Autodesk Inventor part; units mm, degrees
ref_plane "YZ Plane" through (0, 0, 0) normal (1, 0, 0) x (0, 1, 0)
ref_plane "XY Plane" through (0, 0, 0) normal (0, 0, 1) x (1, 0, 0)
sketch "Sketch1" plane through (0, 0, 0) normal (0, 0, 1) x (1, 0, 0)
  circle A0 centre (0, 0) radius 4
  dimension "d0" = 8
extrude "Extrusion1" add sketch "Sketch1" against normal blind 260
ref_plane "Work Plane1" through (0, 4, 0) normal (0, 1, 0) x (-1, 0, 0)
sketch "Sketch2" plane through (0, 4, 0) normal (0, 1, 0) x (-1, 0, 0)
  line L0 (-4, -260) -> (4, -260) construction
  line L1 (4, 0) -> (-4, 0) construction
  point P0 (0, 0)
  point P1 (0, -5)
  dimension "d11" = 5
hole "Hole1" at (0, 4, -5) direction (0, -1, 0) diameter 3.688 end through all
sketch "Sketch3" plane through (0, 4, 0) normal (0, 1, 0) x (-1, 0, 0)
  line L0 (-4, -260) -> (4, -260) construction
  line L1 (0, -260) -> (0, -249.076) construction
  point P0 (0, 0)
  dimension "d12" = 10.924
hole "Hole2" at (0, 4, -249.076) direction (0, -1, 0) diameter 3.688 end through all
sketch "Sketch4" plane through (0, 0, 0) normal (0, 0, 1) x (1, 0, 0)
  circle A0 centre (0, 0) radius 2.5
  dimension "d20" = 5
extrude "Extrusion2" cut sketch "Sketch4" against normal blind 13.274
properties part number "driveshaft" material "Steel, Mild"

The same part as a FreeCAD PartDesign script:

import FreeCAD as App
import Part
import Sketcher

V = App.Vector
Q = App.Units.Quantity

doc = App.newDocument("Part")
body = doc.addObject("PartDesign::Body", "Body")

sketch1 = body.newObject("Sketcher::SketchObject", "Sketch")
sketch1.AttachmentSupport = (doc.getObject("XY_Plane"), [""])
sketch1.MapMode = "FlatFace"
sketch1.addGeometry(Part.Circle(V(0, 0, 0), V(0, 0, 1), 4), False)
sketch1.addConstraint([
    Sketcher.Constraint("Coincident", 0, 3, -1, 1),
    Sketcher.Constraint("Diameter", 0, Q("8 mm")),
])
pad1 = body.newObject("PartDesign::Pad", "Pad")
pad1.Profile = sketch1
pad1.Length = 260
pad1.Reversed = True

sketch2 = body.newObject("Sketcher::SketchObject", "Sketch001")
sketch2.AttachmentSupport = (doc.getObject("XZ_Plane"), [""])
sketch2.MapMode = "FlatFace"
sketch2.AttachmentOffset = App.Placement(V(0, 0, -4), App.Rotation())
sketch2.addGeometry(Part.Circle(V(0, -5, 0), V(0, 0, 1), 1.8), False)
sketch2.addConstraint([
    Sketcher.Constraint("PointOnObject", 0, 3, -2),
    Sketcher.Constraint("Diameter", 0, Q("3.688 mm")),
    Sketcher.Constraint("DistanceY", 0, 3, -1, 1, Q("5 mm")),
])
doc.recompute()
hole = body.newObject("PartDesign::Hole", "Hole")
hole.Profile = sketch2
hole.ThreadType = "None"
hole.Diameter = 3.688
hole.DepthType = "ThroughAll"
hole.Reversed = True

sketch3 = body.newObject("Sketcher::SketchObject", "Sketch002")
sketch3.AttachmentSupport = (doc.getObject("XZ_Plane"), [""])
sketch3.MapMode = "FlatFace"
sketch3.AttachmentOffset = App.Placement(V(0, 0, -4), App.Rotation())
sketch3.addGeometry(Part.Circle(V(0, -249.1, 0), V(0, 0, 1), 1.8), False)
sketch3.addConstraint([
    Sketcher.Constraint("PointOnObject", 0, 3, -2),
    Sketcher.Constraint("Diameter", 0, Q("3.688 mm")),
    Sketcher.Constraint("DistanceY", 0, 3, -1, 1, Q("249.076 mm")),
])
doc.recompute()
hole2 = body.newObject("PartDesign::Hole", "Hole001")
hole2.Profile = sketch3
hole2.ThreadType = "None"
hole2.Diameter = 3.688
hole2.DepthType = "ThroughAll"
hole2.Reversed = True

sketch4 = body.newObject("Sketcher::SketchObject", "Sketch003")
sketch4.AttachmentSupport = (doc.getObject("XY_Plane"), [""])
sketch4.MapMode = "FlatFace"
sketch4.addGeometry(Part.Circle(V(0, 0, 0), V(0, 0, 1), 2.5), False)
sketch4.addConstraint([
    Sketcher.Constraint("Coincident", 0, 3, -1, 1),
    Sketcher.Constraint("Diameter", 0, Q("5 mm")),
])
pocket1 = body.newObject("PartDesign::Pocket", "Pocket")
pocket1.Profile = sketch4
pocket1.Length = 13.274

doc.recompute()
